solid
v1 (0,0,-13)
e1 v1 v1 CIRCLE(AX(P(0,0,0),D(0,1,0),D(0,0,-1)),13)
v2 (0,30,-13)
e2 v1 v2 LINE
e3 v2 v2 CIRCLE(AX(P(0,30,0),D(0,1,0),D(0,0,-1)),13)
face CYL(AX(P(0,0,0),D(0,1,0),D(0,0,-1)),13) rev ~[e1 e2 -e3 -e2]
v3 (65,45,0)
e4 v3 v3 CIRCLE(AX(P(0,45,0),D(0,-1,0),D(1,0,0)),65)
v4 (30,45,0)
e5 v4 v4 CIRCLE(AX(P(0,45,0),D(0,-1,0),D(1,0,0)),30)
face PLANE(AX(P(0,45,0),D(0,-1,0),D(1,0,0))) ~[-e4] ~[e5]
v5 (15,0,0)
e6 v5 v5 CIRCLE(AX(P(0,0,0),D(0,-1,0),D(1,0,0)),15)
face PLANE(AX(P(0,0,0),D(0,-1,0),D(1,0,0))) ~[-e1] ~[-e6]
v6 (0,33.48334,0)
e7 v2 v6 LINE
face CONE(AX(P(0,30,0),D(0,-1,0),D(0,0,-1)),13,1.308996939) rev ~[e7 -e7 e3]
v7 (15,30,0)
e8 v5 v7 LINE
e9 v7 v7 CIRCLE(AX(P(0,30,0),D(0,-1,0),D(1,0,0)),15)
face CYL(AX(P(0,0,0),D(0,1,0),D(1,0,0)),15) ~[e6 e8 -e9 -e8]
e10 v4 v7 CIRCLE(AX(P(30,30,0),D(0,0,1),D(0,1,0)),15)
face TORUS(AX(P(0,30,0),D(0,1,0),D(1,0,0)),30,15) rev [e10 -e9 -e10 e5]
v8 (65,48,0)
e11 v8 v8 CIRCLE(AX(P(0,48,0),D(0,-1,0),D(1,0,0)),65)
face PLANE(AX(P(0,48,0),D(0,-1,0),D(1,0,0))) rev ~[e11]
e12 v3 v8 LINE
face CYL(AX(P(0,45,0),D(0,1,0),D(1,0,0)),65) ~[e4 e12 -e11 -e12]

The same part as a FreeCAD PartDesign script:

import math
import FreeCAD as App
import Part
import Sketcher

doc = App.newDocument("Part")
body = doc.addObject("PartDesign::Body", "Body")

sketch1 = doc.addObject("Sketcher::SketchObject", "Sketch")
body.addObject(sketch1)
sketch1.AttachmentSupport = (doc.XY_Plane, [""])
sketch1.MapMode = "FlatFace"
sketch1.addGeometry([
    Part.LineSegment(App.Vector(65, 48, 0), App.Vector(0, 48, 0)),
    Part.LineSegment(App.Vector(0, 48, 0), App.Vector(0, 0, 0)),
    Part.LineSegment(App.Vector(0, 0, 0), App.Vector(15, 0, 0)),
    Part.LineSegment(App.Vector(15, 0, 0), App.Vector(15, 30, 0)),
    Part.ArcOfCircle(Part.Circle(App.Vector(30, 30, 0), App.Vector(0, 0, 1), 15), math.radians(90), math.radians(180)),
    Part.LineSegment(App.Vector(30, 45, 0), App.Vector(65, 45, 0)),
    Part.LineSegment(App.Vector(65, 45, 0), App.Vector(65, 48, 0)),
], False)
sketch1.addConstraint([
    Sketcher.Constraint("Coincident", 0, 2, 1, 1),
    Sketcher.Constraint("Coincident", 1, 2, 2, 1),
    Sketcher.Constraint("Coincident", 2, 2, 3, 1),
    Sketcher.Constraint("Tangent", 3, 2, 4, 2),
    Sketcher.Constraint("Tangent", 4, 1, 5, 1),
    Sketcher.Constraint("Coincident", 5, 2, 6, 1),
    Sketcher.Constraint("Coincident", 6, 2, 0, 1),
    Sketcher.Constraint("Horizontal", 0),
    Sketcher.Constraint("Vertical", 1),
    Sketcher.Constraint("Horizontal", 2),
    Sketcher.Constraint("Vertical", 3),
    Sketcher.Constraint("Horizontal", 5),
    Sketcher.Constraint("Vertical", 6),
    Sketcher.Constraint("Coincident", 1, 2, -1, 1),
    Sketcher.Constraint("Radius", 4, 15.0),
    Sketcher.Constraint("DistanceX", 0, 2, 0, 1, 65.0),
    Sketcher.Constraint("DistanceX", 2, 1, 2, 2, 15.0),
    Sketcher.Constraint("DistanceY", 3, 1, 3, 2, 30.0),
    Sketcher.Constraint("DistanceY", 6, 1, 6, 2, 3.0),
])
revolution = doc.addObject("PartDesign::Revolution", "Revolution")
body.addObject(revolution)
revolution.Profile = sketch1
revolution.ReferenceAxis = (sketch1, ["V_Axis"])
revolution.Angle = 360

sketch2 = doc.addObject("Sketcher::SketchObject", "Sketch001")
body.addObject(sketch2)
sketch2.AttachmentSupport = (doc.XZ_Plane, [""])
sketch2.MapMode = "FlatFace"
sketch2.addGeometry(Part.Circle(App.Vector(0, 0, 0), App.Vector(0, 0, 1), 13), False)
sketch2.addConstraint([
    Sketcher.Constraint("Coincident", 0, 3, -1, 1),
    Sketcher.Constraint("Diameter", 0, 26.0),
])
doc.recompute()
hole = doc.addObject("PartDesign::Hole", "Hole")
body.addObject(hole)
hole.Profile = sketch2
hole.ThreadType = "None"
hole.Diameter = 26
hole.DepthType = "Dimension"
hole.Depth = 30
hole.DrillPoint = "Angled"
hole.DrillPointAngle = 150

doc.recompute()
